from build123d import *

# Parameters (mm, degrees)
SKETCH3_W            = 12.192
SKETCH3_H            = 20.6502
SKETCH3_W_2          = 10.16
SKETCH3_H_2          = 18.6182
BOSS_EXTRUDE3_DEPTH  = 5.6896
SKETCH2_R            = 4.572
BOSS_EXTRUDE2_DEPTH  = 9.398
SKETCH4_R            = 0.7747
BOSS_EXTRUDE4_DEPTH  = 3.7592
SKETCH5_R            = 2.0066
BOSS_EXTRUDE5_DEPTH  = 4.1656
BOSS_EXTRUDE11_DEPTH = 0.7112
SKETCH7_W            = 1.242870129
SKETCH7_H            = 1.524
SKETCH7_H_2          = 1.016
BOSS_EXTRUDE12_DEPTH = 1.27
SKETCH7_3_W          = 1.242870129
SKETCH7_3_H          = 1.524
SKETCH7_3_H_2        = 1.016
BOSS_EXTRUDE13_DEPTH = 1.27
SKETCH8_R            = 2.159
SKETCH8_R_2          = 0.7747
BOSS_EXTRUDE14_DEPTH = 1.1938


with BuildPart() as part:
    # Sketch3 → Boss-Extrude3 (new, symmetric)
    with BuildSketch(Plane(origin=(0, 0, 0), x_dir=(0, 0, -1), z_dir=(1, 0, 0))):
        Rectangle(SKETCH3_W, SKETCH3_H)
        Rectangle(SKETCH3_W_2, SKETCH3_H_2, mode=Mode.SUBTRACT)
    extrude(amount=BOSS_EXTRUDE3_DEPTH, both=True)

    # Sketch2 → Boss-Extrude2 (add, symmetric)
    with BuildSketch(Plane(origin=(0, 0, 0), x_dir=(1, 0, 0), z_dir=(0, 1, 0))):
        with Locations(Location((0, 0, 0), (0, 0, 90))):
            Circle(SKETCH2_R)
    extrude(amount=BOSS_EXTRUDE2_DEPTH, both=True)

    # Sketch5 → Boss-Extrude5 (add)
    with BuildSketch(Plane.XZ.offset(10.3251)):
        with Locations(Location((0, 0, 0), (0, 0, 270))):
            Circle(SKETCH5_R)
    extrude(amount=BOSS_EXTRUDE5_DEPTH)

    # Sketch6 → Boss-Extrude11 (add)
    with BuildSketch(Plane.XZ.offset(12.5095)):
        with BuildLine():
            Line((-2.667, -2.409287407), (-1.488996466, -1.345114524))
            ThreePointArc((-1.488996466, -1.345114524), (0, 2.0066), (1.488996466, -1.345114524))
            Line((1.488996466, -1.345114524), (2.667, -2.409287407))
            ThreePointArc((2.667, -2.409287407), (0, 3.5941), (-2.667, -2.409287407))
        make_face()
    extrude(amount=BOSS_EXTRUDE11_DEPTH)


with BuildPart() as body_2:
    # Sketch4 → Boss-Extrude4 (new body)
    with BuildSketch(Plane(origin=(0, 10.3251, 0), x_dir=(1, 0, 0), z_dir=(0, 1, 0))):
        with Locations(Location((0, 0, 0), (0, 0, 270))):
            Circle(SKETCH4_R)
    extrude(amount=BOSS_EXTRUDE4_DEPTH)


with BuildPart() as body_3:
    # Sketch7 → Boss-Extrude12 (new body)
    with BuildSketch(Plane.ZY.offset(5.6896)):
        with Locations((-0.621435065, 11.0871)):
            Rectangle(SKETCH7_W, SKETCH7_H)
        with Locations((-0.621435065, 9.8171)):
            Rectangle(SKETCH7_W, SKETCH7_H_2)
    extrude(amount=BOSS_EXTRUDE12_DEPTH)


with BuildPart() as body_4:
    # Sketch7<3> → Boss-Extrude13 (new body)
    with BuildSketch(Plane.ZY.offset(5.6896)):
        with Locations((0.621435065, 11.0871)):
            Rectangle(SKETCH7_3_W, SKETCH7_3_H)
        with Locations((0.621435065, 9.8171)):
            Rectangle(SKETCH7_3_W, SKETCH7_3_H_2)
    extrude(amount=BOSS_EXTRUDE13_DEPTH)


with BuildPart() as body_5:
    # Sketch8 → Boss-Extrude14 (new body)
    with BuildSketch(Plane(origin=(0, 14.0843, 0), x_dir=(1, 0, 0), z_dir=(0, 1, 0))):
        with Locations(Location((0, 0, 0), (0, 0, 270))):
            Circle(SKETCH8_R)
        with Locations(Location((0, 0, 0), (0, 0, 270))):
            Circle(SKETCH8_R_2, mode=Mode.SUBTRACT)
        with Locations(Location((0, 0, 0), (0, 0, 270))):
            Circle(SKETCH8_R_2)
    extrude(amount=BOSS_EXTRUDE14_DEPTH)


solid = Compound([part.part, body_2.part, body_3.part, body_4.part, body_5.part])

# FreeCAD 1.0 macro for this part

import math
import FreeCAD as App
import Part
import Sketcher
Q = App.Units.Quantity


def add_polygon(sketch, points):
    """Adds a closed chain of lines whose ends are joined by coincident constraints."""
    first, n = sketch.GeometryCount, len(points)
    for a, b in zip(points, points[1:] + points[:1]):
        sketch.addGeometry(Part.LineSegment(App.Vector(*a, 0), App.Vector(*b, 0)), False)
    for i in range(n):
        sketch.addConstraint(Sketcher.Constraint("Coincident", first + i, 2, first + (i + 1) % n, 1))

doc = App.newDocument("Part")
body = doc.addObject("PartDesign::Body", "Body")

# Sketch on YZ plane
sketch1 = doc.addObject("Sketcher::SketchObject", "Sketch")
body.addObject(sketch1)
sketch1.AttachmentSupport = (doc.YZ_Plane, [""])
sketch1.MapMode = "FlatFace"
add_polygon(sketch1, [(10, 6), (-10, 6), (-10, -6), (10, -6)])  # lines 0-3
add_polygon(sketch1, [(-9, -5), (-9, 5), (9, 5), (9, -5)])  # lines 4-7
sketch1.addConstraint([
    Sketcher.Constraint("Horizontal", 0),
    Sketcher.Constraint("Vertical", 1),
    Sketcher.Constraint("Horizontal", 2),
    Sketcher.Constraint("Vertical", 3),
    Sketcher.Constraint("Vertical", 4),
    Sketcher.Constraint("Horizontal", 5),
    Sketcher.Constraint("Vertical", 6),
    Sketcher.Constraint("Horizontal", 7),
    Sketcher.Constraint("Symmetric", 0, 2, 2, 2, -1, 1),
    Sketcher.Constraint("Symmetric", 4, 2, 6, 2, -1, 1),
    Sketcher.Constraint("DistanceY", 4, 1, 4, 2, Q("0.4 in")),
    Sketcher.Constraint("DistanceY", 1, 2, 1, 1, Q("0.48 in")),
    Sketcher.Constraint("DistanceX", 0, 2, 0, 1, Q("0.813 in")),
    Sketcher.Constraint("DistanceX", 5, 1, 5, 2, Q("0.733 in")),
])
pad1 = doc.addObject("PartDesign::Pad", "Pad")
body.addObject(pad1)
pad1.Profile = sketch1
pad1.Length = Q("0.448 in")
pad1.Midplane = True

# Sketch on XZ plane
sketch2 = doc.addObject("Sketcher::SketchObject", "Sketch001")
body.addObject(sketch2)
sketch2.AttachmentSupport = (doc.XZ_Plane, [""])
sketch2.MapMode = "FlatFace"
sketch2.addGeometry(Part.Circle(App.Vector(0, 0, 0), App.Vector(0, 0, 1), 4.6), False)
sketch2.addConstraint([
    Sketcher.Constraint("Coincident", 0, 3, -1, 1),
    Sketcher.Constraint("Diameter", 0, Q("0.36 in")),
])
pad2 = doc.addObject("PartDesign::Pad", "Pad001")
body.addObject(pad2)
pad2.Profile = sketch2
pad2.Length = Q("0.74 in")
pad2.Midplane = True

# Sketch on XZ plane
sketch3 = doc.addObject("Sketcher::SketchObject", "Sketch002")
body.addObject(sketch3)
sketch3.AttachmentSupport = (doc.XZ_Plane, [""])
sketch3.MapMode = "FlatFace"
sketch3.AttachmentOffset = App.Placement(App.Vector(0, 0, 0.4065 * 25.4), App.Rotation())
sketch3.addGeometry(Part.Circle(App.Vector(0, 0, 0), App.Vector(0, 0, 1), 2), False)
sketch3.addConstraint([
    Sketcher.Constraint("Coincident", 0, 3, -1, 1),
    Sketcher.Constraint("Diameter", 0, Q("0.158 in")),
])
pad3 = doc.addObject("PartDesign::Pad", "Pad002")
body.addObject(pad3)
pad3.Profile = sketch3
pad3.Length = Q("0.164 in")

# Sketch on XZ plane
sketch4 = doc.addObject("Sketcher::SketchObject", "Sketch003")
body.addObject(sketch4)
sketch4.AttachmentSupport = (doc.XZ_Plane, [""])
sketch4.MapMode = "FlatFace"
sketch4.AttachmentOffset = App.Placement(App.Vector(0, 0, 0.4925 * 25.4), App.Rotation())
sketch4.addGeometry([
    Part.LineSegment(App.Vector(-2.7, -2.4, 0), App.Vector(-1.5, -1.3, 0)),
    Part.ArcOfCircle(Part.Circle(App.Vector(0, 0, 0), App.Vector(0, 0, 1), 2), math.radians(-42), math.radians(222)),
    Part.LineSegment(App.Vector(1.5, -1.3, 0), App.Vector(2.7, -2.4, 0)),
    Part.ArcOfCircle(Part.Circle(App.Vector(0, 0, 0), App.Vector(0, 0, 1), 3.6), math.radians(-42), math.radians(222)),
], False)
sketch4.addConstraint([
    Sketcher.Constraint("Coincident", 0, 2, 1, 2),
    Sketcher.Constraint("Coincident", 1, 1, 2, 1),
    Sketcher.Constraint("Coincident", 2, 2, 3, 1),
    Sketcher.Constraint("Coincident", 3, 2, 0, 1),
    Sketcher.Constraint("Coincident", 1, 3, -1, 1),
    Sketcher.Constraint("Coincident", 3, 3, -1, 1),
    Sketcher.Constraint("Horizontal", 0, 2, 1, 1),
    Sketcher.Constraint("Horizontal", 2, 2, 3, 2),
    Sketcher.Constraint("Radius", 1, Q("0.079 in")),
    Sketcher.Constraint("Radius", 3, Q("0.1415 in")),
    Sketcher.Constraint("DistanceX", 3, 2, 2, 2, Q("0.21 in")),
    Sketcher.Constraint("DistanceX", 0, 2, -1, 1, 1.488996),
])
pad4 = doc.addObject("PartDesign::Pad", "Pad003")
body.addObject(pad4)
pad4.Profile = sketch4
pad4.Length = Q("0.028 in")
body2 = doc.addObject("PartDesign::Body", "Body001")

# Sketch on XZ plane
sketch5 = doc.addObject("Sketcher::SketchObject", "Sketch004")
body2.addObject(sketch5)
sketch5.AttachmentSupport = (doc.getObject("XZ_Plane001"), [""])
sketch5.MapMode = "FlatFace"
sketch5.AttachmentOffset = App.Placement(App.Vector(0, 0, -0.4065 * 25.4), App.Rotation())
sketch5.addGeometry(Part.Circle(App.Vector(0, 0, 0), App.Vector(0, 0, 1), 0.8), False)
sketch5.addConstraint([
    Sketcher.Constraint("Coincident", 0, 3, -1, 1),
    Sketcher.Constraint("Diameter", 0, Q("0.061 in")),
])
pad5 = doc.addObject("PartDesign::Pad", "Pad004")
body2.addObject(pad5)
pad5.Profile = sketch5
pad5.Length = Q("0.148 in")
pad5.Reversed = True
body3 = doc.addObject("PartDesign::Body", "Body002")

# Sketch on YZ plane
sketch6 = doc.addObject("Sketcher::SketchObject", "Sketch005")
body3.addObject(sketch6)
sketch6.AttachmentSupport = (doc.getObject("YZ_Plane002"), [""])
sketch6.MapMode = "FlatFace"
sketch6.AttachmentOffset = App.Placement(App.Vector(0, 0, -0.224 * 25.4), App.Rotation())
add_polygon(sketch6, [(11.8, -1.2), (9.3, -1.2), (9.3, 0), (11.8, 0)])  # lines 0-3
sketch6.addConstraint([
    Sketcher.Constraint("Horizontal", 0),
    Sketcher.Constraint("Vertical", 1),
    Sketcher.Constraint("Horizontal", 2),
    Sketcher.Constraint("Vertical", 3),
    Sketcher.Constraint("PointOnObject", 1, 2, -1),
    Sketcher.Constraint("DistanceX", 0, 2, 0, 1, Q("0.1 in")),
    Sketcher.Constraint("DistanceX", -1, 1, 0, 2, Q("0.3665 in")),
    Sketcher.Constraint("DistanceY", 1, 1, 1, 2, 1.24287),
])
pad6 = doc.addObject("PartDesign::Pad", "Pad005")
body3.addObject(pad6)
pad6.Profile = sketch6
pad6.Length = Q("0.05 in")
pad6.Reversed = True
body4 = doc.addObject("PartDesign::Body", "Body003")

# Sketch on YZ plane
sketch7 = doc.addObject("Sketcher::SketchObject", "Sketch006")
body4.addObject(sketch7)
sketch7.AttachmentSupport = (doc.getObject("YZ_Plane003"), [""])
sketch7.MapMode = "FlatFace"
sketch7.AttachmentOffset = App.Placement(App.Vector(0, 0, -0.224 * 25.4), App.Rotation())
add_polygon(sketch7, [(11.8, 0), (9.3, 0), (9.3, 1.2), (11.8, 1.2)])  # lines 0-3
sketch7.addConstraint([
    Sketcher.Constraint("Horizontal", 0),
    Sketcher.Constraint("Vertical", 1),
    Sketcher.Constraint("Horizontal", 2),
    Sketcher.Constraint("Vertical", 3),
    Sketcher.Constraint("PointOnObject", 0, 2, -1),
    Sketcher.Constraint("DistanceX", 0, 2, 0, 1, Q("0.1 in")),
    Sketcher.Constraint("DistanceX", -1, 1, 0, 2, Q("0.3665 in")),
    Sketcher.Constraint("DistanceY", 1, 1, 1, 2, 1.24287),
])
pad7 = doc.addObject("PartDesign::Pad", "Pad006")
body4.addObject(pad7)
pad7.Profile = sketch7
pad7.Length = Q("0.05 in")
pad7.Reversed = True
body5 = doc.addObject("PartDesign::Body", "Body004")

# Sketch on XZ plane
sketch8 = doc.addObject("Sketcher::SketchObject", "Sketch007")
body5.addObject(sketch8)
sketch8.AttachmentSupport = (doc.getObject("XZ_Plane004"), [""])
sketch8.MapMode = "FlatFace"
sketch8.AttachmentOffset = App.Placement(App.Vector(0, 0, -0.5545 * 25.4), App.Rotation())
sketch8.addGeometry(Part.Circle(App.Vector(0, 0, 0), App.Vector(0, 0, 1), 2.2), False)
sketch8.addConstraint([
    Sketcher.Constraint("Coincident", 0, 3, -1, 1),
    Sketcher.Constraint("Diameter", 0, Q("0.17 in")),
])
pad8 = doc.addObject("PartDesign::Pad", "Pad007")
body5.addObject(pad8)
pad8.Profile = sketch8
pad8.Length = Q("0.047 in")
pad8.Reversed = True

doc.recompute()
